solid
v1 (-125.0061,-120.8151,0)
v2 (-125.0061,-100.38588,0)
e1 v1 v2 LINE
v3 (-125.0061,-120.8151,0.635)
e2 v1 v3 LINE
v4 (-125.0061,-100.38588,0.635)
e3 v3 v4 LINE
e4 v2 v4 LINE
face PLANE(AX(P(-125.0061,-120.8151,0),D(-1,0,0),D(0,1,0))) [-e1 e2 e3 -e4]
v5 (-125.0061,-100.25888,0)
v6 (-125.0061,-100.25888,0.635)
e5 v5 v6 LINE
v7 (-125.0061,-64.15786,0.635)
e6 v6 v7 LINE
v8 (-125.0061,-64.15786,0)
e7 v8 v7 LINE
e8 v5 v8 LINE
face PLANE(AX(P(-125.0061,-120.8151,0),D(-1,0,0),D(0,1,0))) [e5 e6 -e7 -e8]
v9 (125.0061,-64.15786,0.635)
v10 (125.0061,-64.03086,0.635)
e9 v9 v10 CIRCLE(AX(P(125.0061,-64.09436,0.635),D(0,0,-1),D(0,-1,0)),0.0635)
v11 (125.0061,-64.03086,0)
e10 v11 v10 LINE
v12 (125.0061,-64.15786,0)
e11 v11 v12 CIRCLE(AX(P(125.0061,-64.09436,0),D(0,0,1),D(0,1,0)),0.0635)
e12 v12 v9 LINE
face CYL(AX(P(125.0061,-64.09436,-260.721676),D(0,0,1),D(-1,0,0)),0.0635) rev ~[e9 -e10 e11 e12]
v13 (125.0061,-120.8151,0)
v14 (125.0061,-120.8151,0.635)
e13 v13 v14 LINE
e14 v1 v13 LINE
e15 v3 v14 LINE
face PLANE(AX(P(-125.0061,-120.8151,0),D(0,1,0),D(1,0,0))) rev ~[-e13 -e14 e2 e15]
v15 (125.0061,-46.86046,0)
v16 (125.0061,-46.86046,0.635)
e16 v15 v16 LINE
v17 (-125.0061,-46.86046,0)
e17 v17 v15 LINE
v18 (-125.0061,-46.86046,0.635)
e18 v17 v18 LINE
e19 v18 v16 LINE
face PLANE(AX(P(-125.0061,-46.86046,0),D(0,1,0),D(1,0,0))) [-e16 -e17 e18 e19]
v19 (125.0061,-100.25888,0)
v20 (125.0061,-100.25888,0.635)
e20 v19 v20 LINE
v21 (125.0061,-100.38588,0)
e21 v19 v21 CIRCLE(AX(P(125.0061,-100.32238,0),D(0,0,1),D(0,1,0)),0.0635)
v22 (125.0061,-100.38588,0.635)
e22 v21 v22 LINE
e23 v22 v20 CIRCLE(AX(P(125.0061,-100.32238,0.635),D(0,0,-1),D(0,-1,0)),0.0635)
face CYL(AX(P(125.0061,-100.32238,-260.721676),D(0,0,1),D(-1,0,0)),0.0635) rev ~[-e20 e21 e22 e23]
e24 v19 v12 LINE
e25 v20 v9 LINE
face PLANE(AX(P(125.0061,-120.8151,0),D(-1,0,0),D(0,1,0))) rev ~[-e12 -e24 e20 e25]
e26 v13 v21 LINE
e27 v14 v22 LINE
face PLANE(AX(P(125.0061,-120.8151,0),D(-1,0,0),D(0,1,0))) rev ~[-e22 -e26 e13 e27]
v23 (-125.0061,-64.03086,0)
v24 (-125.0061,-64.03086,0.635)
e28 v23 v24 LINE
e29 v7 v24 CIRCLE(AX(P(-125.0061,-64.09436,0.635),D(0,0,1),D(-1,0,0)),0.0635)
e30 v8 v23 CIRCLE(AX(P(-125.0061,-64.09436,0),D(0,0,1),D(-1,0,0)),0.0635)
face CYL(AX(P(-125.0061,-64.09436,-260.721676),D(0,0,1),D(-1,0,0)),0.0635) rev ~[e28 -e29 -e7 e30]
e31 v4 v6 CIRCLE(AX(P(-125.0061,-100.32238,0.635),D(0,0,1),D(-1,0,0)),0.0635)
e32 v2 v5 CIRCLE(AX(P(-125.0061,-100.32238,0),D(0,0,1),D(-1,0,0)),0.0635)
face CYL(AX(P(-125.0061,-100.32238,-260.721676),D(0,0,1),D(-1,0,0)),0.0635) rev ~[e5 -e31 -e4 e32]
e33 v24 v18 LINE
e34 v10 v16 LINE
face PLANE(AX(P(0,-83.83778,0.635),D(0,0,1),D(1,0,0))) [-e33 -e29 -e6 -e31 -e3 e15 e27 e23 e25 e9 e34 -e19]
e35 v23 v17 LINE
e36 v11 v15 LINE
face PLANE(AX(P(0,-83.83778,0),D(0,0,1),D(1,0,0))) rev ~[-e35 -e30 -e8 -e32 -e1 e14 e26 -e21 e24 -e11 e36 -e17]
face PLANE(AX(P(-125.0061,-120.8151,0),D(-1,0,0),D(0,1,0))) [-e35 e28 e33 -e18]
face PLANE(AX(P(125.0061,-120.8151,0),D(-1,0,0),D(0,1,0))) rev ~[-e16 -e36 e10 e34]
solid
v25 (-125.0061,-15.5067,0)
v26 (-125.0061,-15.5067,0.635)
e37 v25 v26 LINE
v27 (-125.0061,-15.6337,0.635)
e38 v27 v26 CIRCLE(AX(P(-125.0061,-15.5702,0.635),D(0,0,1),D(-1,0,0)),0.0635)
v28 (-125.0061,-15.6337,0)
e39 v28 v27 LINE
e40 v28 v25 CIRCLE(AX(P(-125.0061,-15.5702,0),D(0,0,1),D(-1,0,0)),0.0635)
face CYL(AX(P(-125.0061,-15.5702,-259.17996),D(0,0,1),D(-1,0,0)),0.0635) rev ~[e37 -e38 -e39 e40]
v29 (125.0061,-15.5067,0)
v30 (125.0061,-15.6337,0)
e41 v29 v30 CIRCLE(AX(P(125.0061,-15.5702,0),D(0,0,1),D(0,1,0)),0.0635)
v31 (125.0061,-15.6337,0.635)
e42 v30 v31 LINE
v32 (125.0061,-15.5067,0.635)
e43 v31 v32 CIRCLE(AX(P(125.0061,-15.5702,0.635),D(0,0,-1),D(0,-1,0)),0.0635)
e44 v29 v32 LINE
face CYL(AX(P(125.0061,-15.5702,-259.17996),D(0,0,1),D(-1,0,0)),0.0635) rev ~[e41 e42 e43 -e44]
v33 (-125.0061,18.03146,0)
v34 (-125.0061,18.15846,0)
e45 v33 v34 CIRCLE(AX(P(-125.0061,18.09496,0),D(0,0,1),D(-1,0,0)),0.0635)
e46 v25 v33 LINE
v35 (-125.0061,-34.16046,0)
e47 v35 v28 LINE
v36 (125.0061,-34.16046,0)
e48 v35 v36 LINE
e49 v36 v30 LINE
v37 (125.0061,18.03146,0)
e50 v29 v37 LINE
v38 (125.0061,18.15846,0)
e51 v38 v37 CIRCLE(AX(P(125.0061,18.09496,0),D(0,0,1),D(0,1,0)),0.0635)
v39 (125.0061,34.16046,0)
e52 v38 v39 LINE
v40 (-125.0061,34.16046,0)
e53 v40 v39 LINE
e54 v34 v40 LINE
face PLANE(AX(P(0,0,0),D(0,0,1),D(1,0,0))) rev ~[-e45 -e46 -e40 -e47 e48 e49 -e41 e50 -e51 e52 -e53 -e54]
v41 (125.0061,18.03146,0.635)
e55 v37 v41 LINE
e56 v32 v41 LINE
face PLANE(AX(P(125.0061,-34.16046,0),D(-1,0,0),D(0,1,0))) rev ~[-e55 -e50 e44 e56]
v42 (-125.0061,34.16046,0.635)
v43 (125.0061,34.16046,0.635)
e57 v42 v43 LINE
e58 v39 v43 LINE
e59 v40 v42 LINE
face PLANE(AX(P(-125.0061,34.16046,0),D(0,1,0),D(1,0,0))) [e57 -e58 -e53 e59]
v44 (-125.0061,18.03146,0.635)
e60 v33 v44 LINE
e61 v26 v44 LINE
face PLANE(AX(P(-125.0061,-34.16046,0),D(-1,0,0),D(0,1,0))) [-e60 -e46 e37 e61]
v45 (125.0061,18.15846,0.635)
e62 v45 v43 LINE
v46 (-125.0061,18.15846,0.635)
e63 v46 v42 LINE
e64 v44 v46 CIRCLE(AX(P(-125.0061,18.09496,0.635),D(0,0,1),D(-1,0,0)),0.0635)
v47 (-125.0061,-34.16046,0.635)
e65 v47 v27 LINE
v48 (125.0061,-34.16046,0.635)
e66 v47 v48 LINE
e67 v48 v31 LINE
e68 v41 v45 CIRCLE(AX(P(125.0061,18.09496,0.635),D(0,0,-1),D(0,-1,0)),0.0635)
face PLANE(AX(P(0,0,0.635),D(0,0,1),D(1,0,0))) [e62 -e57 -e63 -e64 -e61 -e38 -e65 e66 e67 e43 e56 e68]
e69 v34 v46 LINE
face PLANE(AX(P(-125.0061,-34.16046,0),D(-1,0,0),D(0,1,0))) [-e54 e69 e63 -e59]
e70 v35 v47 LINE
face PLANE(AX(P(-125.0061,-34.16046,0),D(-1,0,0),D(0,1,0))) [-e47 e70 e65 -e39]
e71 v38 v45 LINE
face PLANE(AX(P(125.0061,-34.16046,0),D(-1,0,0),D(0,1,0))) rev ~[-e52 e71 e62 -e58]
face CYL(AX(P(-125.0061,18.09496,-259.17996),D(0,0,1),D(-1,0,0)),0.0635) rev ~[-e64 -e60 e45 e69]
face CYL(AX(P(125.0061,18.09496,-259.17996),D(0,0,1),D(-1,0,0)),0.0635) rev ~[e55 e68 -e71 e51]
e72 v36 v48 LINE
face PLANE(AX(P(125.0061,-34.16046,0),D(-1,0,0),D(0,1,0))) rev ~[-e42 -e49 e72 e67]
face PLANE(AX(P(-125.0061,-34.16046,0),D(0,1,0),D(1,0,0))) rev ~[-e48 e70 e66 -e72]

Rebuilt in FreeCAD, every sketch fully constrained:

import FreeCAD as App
import Part
import Sketcher
Q = App.Units.Quantity


def add_polygon(sketch, points):
    """Adds a closed chain of lines whose ends are joined by coincident constraints."""
    first, n = sketch.GeometryCount, len(points)
    for a, b in zip(points, points[1:] + points[:1]):
        sketch.addGeometry(Part.LineSegment(App.Vector(*a, 0), App.Vector(*b, 0)), False)
    for i in range(n):
        sketch.addConstraint(Sketcher.Constraint("Coincident", first + i, 2, first + (i + 1) % n, 1))

doc = App.newDocument("Part")
body = doc.addObject("PartDesign::Body", "Body")

# Sketch on XY plane
sketch1 = doc.addObject("Sketcher::SketchObject", "Sketch")
body.addObject(sketch1)
sketch1.AttachmentSupport = (doc.XY_Plane, [""])
sketch1.MapMode = "FlatFace"
add_polygon(sketch1, [(-125.0061, 34.16046), (-125.0061, -34.16046), (125.0061, -34.16046), (125.0061, 34.16046)])  # lines 0-3
sketch1.addConstraint([
    Sketcher.Constraint("Vertical", 0),
    Sketcher.Constraint("Horizontal", 1),
    Sketcher.Constraint("Vertical", 2),
    Sketcher.Constraint("Horizontal", 3),
    Sketcher.Constraint("Symmetric", 0, 2, 2, 2, -1, 1),
    Sketcher.Constraint("DistanceX", 1, 1, 1, 2, Q("9.843 in")),
    Sketcher.Constraint("DistanceY", 0, 2, 0, 1, Q("2.6898 in")),
])
pad1 = doc.addObject("PartDesign::Pad", "Pad")
body.addObject(pad1)
pad1.Profile = sketch1
pad1.Length = Q("0.025 in")

# Sketch on XY plane
sketch2 = doc.addObject("Sketcher::SketchObject", "Sketch001")
body.addObject(sketch2)
sketch2.AttachmentSupport = (doc.XY_Plane, [""])
sketch2.MapMode = "FlatFace"
sketch2.addGeometry([
    Part.Circle(App.Vector(-125.0061, 18.09496, 0), App.Vector(0, 0, 1), 0.0635),
    Part.Circle(App.Vector(-125.0061, -15.5702, 0), App.Vector(0, 0, 1), 0.0635),
    Part.Circle(App.Vector(125.0061, -15.5702, 0), App.Vector(0, 0, 1), 0.0635),
    Part.Circle(App.Vector(125.0061, 18.09496, 0), App.Vector(0, 0, 1), 0.0635),
], False)
sketch2.addConstraint([
    Sketcher.Constraint("Equal", 0, 1),
    Sketcher.Constraint("Equal", 1, 2),
    Sketcher.Constraint("Equal", 2, 3),
    Sketcher.Constraint("Symmetric", 1, 3, 2, 3, -2),
    Sketcher.Constraint("Symmetric", 0, 3, 3, 3, -2),
    Sketcher.Constraint("Vertical", 0, 3, 1, 3),
    Sketcher.Constraint("Diameter", 0, Q("0.005 in")),
    Sketcher.Constraint("DistanceY", 1, 3, -1, 1, Q("0.613 in")),
    Sketcher.Constraint("DistanceX", 1, 3, 2, 3, Q("9.843 in")),
    Sketcher.Constraint("DistanceY", -1, 1, 0, 3, Q("0.7124 in")),
])
doc.recompute()
hole = doc.addObject("PartDesign::Hole", "Hole")
body.addObject(hole)
hole.Profile = sketch2
hole.ThreadType = "None"
hole.Diameter = Q("0.005 in")
hole.DepthType = "ThroughAll"
hole.Reversed = True
body2 = doc.addObject("PartDesign::Body", "Body001")

# Sketch on XY plane
sketch3 = doc.addObject("Sketcher::SketchObject", "Sketch002")
body2.addObject(sketch3)
sketch3.AttachmentSupport = (doc.getObject("XY_Plane001"), [""])
sketch3.MapMode = "FlatFace"
add_polygon(sketch3, [(-125.0061, -46.86046), (-125.0061, -120.8151), (125.0061, -120.8151), (125.0061, -46.86046)])  # lines 0-3
sketch3.addConstraint([
    Sketcher.Constraint("Vertical", 0),
    Sketcher.Constraint("Horizontal", 1),
    Sketcher.Constraint("Vertical", 2),
    Sketcher.Constraint("Horizontal", 3),
    Sketcher.Constraint("DistanceX", 1, 1, 1, 2, Q("9.843 in")),
    Sketcher.Constraint("DistanceY", 0, 2, 0, 1, Q("2.9116 in")),
    Sketcher.Constraint("DistanceX", 0, 2, -1, 1, Q("4.9215 in")),
    Sketcher.Constraint("DistanceY", 0, 2, -1, 1, Q("4.7565 in")),
])
pad2 = doc.addObject("PartDesign::Pad", "Pad001")
body2.addObject(pad2)
pad2.Profile = sketch3
pad2.Length = Q("0.025 in")

# Sketch on XY plane
sketch4 = doc.addObject("Sketcher::SketchObject", "Sketch003")
body2.addObject(sketch4)
sketch4.AttachmentSupport = (doc.getObject("XY_Plane001"), [""])
sketch4.MapMode = "FlatFace"
sketch4.addGeometry([
    Part.Circle(App.Vector(-125.0061, -64.09436, 0), App.Vector(0, 0, 1), 0.0635),
    Part.Circle(App.Vector(-125.0061, -100.32238, 0), App.Vector(0, 0, 1), 0.0635),
    Part.Circle(App.Vector(125.0061, -100.32238, 0), App.Vector(0, 0, 1), 0.0635),
    Part.Circle(App.Vector(125.0061, -64.09436, 0), App.Vector(0, 0, 1), 0.0635),
], False)
sketch4.addConstraint([
    Sketcher.Constraint("Equal", 0, 1),
    Sketcher.Constraint("Equal", 1, 2),
    Sketcher.Constraint("Equal", 2, 3),
    Sketcher.Constraint("Symmetric", 1, 3, 2, 3, -2),
    Sketcher.Constraint("Symmetric", 0, 3, 3, 3, -2),
    Sketcher.Constraint("Vertical", 0, 3, 1, 3),
    Sketcher.Constraint("Diameter", 0, Q("0.005 in")),
    Sketcher.Constraint("DistanceX", 1, 3, 2, 3, Q("9.843 in")),
    Sketcher.Constraint("DistanceY", 0, 3, -1, 1, Q("2.5234 in")),
    Sketcher.Constraint("DistanceY", 1, 3, -1, 1, Q("3.9497 in")),
])
doc.recompute()
hole2 = doc.addObject("PartDesign::Hole", "Hole001")
body2.addObject(hole2)
hole2.Profile = sketch4
hole2.ThreadType = "None"
hole2.Diameter = Q("0.005 in")
hole2.DepthType = "ThroughAll"
hole2.Reversed = True

doc.recompute()
